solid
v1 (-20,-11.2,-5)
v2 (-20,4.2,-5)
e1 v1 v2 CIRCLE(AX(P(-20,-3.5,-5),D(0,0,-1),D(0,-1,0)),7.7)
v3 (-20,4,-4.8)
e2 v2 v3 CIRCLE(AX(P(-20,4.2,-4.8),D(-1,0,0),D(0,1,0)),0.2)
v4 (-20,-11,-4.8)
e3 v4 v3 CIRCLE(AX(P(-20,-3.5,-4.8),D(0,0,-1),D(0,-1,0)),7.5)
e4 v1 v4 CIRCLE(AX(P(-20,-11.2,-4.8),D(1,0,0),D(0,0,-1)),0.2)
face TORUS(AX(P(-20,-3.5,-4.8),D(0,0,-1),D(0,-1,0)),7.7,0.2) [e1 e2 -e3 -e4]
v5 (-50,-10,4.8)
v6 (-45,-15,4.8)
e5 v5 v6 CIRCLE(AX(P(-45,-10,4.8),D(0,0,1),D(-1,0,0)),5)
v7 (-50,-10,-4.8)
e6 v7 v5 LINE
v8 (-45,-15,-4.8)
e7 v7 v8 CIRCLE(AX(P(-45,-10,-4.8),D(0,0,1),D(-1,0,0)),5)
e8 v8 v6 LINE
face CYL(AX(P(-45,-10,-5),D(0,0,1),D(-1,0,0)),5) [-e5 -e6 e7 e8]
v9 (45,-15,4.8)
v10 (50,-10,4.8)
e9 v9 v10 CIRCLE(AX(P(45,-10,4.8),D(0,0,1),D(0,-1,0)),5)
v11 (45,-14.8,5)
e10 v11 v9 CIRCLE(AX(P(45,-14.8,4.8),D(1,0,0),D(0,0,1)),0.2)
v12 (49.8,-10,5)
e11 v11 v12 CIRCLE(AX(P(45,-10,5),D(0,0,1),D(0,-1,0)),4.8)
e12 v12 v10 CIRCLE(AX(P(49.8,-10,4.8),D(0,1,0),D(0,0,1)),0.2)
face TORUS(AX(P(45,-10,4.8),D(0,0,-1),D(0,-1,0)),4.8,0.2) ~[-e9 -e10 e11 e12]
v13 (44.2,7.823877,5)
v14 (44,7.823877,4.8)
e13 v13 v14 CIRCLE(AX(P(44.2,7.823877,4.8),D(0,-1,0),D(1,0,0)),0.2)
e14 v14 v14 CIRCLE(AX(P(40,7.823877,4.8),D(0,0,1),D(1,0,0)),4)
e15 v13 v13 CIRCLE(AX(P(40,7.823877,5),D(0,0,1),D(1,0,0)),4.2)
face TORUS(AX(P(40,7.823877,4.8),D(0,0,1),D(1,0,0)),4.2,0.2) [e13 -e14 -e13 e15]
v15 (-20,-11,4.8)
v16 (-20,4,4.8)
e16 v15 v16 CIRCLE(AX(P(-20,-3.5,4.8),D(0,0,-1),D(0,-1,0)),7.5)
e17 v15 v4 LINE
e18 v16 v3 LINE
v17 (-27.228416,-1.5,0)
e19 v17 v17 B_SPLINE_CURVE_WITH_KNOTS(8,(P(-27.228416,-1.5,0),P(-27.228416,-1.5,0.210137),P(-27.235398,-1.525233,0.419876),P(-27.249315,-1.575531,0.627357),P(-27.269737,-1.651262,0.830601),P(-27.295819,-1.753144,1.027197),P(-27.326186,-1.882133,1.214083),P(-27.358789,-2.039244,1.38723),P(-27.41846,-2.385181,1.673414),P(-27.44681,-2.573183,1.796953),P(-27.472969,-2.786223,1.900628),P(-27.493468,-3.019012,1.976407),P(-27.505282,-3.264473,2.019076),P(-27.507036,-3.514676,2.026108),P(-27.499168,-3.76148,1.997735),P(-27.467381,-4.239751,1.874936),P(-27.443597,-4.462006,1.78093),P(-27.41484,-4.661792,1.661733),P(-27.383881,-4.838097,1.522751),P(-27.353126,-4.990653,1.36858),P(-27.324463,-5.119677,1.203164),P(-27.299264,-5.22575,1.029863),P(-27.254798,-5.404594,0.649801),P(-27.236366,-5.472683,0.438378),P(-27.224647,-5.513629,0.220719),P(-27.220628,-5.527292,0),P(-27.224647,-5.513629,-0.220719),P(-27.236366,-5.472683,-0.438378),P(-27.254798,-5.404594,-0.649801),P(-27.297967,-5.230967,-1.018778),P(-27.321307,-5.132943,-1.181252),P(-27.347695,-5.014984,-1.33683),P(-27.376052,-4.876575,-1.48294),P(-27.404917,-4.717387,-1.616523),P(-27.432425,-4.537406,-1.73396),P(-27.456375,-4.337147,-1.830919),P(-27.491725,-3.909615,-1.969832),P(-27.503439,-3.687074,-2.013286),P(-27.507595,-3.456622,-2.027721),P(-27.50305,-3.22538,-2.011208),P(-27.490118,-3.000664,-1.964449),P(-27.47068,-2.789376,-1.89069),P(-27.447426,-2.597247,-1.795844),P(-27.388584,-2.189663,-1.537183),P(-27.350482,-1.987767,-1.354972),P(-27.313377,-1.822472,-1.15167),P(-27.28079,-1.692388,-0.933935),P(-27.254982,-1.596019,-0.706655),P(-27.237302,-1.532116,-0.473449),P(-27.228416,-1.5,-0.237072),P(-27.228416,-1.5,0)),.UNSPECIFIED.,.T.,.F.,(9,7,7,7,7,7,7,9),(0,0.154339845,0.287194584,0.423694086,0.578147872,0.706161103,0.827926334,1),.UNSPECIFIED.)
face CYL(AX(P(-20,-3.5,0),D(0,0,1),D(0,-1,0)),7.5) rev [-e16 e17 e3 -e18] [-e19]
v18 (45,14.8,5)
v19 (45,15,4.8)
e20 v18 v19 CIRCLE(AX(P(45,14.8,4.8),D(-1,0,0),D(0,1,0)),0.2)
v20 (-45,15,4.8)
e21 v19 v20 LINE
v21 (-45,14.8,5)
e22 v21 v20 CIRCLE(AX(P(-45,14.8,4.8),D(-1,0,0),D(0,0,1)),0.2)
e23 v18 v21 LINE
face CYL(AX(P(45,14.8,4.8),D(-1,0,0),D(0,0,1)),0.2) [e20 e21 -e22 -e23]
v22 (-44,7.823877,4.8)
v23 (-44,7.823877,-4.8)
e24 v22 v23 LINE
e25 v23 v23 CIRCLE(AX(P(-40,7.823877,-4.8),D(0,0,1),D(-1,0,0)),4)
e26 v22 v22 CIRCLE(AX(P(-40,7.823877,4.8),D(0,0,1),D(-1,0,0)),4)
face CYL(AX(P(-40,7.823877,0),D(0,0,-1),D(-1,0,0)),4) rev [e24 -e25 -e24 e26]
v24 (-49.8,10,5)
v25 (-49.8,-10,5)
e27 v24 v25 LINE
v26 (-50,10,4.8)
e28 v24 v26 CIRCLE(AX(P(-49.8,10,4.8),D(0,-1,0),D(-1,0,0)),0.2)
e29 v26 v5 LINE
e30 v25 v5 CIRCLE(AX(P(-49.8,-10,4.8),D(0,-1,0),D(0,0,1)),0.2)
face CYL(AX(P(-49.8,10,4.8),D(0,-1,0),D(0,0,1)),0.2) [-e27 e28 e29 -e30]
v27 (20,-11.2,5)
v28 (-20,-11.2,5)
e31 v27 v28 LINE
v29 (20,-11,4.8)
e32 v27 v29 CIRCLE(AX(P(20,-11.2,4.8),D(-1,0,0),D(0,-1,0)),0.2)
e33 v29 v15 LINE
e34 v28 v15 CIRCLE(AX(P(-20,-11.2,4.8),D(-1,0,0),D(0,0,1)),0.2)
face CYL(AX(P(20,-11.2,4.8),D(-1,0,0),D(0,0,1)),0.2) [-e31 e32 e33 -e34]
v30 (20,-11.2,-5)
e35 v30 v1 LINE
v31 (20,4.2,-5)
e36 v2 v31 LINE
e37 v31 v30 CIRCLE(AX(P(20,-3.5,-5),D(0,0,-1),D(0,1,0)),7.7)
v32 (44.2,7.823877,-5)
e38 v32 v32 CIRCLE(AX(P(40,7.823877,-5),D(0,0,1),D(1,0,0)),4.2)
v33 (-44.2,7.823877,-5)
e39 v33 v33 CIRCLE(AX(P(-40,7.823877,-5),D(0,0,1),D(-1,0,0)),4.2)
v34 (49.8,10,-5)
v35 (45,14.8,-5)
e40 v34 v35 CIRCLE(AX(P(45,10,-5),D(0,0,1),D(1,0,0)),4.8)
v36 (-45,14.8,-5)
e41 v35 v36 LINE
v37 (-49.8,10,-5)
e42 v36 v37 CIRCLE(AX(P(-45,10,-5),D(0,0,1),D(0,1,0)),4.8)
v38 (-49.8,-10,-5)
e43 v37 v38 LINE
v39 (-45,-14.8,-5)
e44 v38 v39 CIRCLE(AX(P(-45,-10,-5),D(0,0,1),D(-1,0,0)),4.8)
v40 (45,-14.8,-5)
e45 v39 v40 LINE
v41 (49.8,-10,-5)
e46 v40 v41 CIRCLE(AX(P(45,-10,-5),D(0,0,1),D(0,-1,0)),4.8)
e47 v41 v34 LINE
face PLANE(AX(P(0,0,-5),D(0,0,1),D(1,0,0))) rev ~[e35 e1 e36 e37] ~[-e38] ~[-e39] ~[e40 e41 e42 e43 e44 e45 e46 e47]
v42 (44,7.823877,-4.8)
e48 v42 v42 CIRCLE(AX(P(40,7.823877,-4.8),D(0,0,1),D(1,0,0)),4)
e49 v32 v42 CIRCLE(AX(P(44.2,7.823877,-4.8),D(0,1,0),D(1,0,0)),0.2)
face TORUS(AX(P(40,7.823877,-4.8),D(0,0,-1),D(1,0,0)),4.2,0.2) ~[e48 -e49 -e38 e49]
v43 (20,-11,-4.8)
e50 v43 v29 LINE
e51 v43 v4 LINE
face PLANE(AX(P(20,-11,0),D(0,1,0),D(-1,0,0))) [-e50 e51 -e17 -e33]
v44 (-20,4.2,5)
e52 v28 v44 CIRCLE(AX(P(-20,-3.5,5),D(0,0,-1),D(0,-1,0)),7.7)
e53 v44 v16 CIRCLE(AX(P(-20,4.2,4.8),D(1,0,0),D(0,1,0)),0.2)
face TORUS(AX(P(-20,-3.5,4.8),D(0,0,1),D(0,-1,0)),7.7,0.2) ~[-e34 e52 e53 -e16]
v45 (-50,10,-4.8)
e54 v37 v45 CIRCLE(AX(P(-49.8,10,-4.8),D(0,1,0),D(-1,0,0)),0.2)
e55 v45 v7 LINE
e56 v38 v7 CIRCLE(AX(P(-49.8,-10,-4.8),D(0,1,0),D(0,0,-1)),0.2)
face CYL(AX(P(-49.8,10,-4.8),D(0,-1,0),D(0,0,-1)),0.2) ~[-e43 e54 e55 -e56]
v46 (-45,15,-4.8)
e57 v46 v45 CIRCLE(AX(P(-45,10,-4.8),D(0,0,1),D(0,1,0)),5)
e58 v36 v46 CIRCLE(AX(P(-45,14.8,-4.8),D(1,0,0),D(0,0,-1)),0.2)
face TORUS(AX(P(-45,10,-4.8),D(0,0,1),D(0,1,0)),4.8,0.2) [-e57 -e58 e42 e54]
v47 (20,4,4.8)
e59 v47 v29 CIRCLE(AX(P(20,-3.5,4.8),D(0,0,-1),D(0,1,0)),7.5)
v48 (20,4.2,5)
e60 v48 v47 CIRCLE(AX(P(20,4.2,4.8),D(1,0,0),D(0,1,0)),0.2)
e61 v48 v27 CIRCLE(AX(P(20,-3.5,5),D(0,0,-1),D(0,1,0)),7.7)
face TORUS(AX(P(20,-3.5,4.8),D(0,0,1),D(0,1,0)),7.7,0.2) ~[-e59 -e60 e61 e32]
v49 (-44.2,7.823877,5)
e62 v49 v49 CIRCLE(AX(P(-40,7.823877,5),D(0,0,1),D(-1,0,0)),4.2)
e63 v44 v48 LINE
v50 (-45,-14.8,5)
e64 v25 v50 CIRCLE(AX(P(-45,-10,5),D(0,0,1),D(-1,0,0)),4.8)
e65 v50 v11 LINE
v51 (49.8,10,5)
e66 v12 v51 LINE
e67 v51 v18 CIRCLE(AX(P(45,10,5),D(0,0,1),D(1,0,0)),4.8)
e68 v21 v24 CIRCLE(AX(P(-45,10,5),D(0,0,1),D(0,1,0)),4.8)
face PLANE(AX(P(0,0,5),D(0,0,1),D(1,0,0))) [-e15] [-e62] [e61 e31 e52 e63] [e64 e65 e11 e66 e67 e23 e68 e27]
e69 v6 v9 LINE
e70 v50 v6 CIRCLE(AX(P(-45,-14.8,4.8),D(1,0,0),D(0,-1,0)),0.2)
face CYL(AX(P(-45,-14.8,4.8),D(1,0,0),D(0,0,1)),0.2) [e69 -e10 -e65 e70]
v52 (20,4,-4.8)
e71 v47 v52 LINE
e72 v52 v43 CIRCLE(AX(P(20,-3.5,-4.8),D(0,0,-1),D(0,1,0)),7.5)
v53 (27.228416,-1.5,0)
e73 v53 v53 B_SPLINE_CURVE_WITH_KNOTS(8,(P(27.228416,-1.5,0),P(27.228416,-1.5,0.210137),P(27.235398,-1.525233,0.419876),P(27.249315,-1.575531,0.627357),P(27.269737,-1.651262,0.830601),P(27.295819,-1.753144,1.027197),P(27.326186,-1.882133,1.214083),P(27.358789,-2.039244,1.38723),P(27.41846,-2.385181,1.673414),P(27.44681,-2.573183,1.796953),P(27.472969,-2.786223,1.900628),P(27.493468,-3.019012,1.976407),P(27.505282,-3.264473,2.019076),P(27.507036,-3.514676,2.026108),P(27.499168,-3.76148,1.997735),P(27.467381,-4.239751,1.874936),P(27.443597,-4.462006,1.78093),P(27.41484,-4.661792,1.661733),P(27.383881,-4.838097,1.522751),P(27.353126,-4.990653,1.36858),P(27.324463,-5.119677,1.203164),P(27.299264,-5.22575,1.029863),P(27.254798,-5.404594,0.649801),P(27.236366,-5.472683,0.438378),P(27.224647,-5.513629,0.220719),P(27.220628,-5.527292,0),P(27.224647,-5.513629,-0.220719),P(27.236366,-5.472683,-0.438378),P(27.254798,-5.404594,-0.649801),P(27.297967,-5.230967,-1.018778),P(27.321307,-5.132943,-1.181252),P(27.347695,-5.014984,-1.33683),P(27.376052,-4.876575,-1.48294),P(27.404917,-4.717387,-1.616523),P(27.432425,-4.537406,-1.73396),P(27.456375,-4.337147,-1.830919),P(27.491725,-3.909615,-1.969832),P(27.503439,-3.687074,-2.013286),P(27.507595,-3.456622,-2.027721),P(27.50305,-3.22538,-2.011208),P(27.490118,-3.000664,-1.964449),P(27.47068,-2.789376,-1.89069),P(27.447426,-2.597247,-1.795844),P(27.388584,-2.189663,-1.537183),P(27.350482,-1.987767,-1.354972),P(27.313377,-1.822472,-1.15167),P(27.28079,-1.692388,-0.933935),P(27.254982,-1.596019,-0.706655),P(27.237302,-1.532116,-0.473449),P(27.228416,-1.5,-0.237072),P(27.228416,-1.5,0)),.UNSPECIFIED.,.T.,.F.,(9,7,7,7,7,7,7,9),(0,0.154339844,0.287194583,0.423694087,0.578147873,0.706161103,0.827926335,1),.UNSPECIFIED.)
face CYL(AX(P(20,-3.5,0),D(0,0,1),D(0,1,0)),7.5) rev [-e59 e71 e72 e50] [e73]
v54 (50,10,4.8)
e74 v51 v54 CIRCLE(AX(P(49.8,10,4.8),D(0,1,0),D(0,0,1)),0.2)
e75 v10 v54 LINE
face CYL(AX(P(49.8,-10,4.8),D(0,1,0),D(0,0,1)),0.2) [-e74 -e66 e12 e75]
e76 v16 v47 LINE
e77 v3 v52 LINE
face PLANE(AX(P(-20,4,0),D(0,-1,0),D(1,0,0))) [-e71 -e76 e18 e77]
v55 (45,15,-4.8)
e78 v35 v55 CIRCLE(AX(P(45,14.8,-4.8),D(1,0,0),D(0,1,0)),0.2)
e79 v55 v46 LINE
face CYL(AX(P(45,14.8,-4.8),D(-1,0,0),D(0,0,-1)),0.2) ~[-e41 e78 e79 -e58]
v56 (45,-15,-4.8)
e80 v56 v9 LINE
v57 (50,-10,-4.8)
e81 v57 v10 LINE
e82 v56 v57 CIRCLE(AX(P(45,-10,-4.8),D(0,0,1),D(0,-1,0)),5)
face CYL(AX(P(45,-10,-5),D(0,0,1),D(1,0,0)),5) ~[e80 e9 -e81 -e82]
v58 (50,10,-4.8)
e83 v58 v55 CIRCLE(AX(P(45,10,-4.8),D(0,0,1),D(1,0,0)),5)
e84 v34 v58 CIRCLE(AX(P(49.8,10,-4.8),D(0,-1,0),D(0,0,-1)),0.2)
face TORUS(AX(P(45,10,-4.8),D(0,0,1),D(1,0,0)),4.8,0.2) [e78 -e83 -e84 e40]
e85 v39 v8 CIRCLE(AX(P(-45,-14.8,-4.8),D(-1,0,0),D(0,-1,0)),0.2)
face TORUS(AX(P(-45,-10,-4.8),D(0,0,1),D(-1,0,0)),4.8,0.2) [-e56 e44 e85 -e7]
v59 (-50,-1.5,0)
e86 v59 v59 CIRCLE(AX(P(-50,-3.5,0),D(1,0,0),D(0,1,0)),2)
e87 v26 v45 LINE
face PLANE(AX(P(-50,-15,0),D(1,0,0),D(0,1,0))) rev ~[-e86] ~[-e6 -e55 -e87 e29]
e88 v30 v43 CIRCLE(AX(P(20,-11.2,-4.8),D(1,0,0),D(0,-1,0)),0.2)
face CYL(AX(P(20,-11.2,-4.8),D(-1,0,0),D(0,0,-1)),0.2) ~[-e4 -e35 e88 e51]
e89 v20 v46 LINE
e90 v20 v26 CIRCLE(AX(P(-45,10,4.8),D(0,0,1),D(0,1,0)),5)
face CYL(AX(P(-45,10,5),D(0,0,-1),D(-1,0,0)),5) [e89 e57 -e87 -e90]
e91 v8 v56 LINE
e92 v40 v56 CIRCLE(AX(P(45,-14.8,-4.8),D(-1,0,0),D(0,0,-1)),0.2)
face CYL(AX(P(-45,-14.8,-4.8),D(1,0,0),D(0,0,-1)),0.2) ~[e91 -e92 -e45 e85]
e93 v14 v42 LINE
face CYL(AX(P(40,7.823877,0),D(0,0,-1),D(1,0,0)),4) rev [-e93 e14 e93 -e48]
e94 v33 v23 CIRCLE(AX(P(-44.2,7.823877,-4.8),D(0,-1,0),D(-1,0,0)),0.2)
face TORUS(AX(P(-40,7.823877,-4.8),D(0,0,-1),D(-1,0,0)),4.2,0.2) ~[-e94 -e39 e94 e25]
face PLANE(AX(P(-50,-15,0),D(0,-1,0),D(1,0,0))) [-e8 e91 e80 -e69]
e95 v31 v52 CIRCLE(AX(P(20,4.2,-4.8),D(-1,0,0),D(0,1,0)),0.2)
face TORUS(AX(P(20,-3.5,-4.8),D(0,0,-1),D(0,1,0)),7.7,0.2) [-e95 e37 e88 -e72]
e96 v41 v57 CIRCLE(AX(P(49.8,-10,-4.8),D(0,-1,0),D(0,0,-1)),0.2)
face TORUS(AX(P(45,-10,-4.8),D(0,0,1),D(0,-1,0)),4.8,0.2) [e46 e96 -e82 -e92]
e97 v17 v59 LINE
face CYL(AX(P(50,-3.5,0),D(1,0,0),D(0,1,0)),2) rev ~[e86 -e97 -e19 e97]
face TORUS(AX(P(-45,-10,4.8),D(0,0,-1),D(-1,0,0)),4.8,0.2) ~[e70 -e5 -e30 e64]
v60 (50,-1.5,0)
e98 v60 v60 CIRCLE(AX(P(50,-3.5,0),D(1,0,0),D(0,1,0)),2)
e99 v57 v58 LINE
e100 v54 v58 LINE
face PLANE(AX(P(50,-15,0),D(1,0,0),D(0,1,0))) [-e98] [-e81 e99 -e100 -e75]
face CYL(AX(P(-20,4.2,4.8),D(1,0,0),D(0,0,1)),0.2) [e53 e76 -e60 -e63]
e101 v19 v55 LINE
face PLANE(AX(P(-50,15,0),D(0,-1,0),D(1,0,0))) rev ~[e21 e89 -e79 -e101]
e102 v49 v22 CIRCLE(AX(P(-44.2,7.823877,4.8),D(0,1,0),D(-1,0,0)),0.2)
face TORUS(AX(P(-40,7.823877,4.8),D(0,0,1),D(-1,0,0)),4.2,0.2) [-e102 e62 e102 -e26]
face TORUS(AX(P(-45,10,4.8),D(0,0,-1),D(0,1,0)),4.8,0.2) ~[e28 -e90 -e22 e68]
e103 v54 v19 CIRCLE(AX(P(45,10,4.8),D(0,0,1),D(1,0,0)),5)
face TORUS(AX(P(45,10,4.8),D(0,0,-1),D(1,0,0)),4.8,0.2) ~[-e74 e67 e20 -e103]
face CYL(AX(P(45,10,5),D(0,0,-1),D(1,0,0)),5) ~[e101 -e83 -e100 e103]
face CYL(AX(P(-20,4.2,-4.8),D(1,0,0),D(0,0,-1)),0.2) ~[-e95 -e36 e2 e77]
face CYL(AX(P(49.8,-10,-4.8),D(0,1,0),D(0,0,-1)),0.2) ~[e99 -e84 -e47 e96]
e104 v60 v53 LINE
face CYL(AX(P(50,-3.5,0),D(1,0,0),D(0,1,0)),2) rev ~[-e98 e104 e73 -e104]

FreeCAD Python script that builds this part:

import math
import FreeCAD as App
import Part
import Sketcher


def edges_at(feature, points):
    """Names of the edges that pass closest to the given points."""
    edges = feature.Shape.Edges
    near = lambda p: min(range(len(edges)), key=lambda i: edges[i].distToShape(Part.Vertex(*p))[0])
    return sorted({f"Edge{near(p) + 1}" for p in points})


def add_polygon(sketch, points):
    """Adds a closed chain of lines whose ends are joined by coincident constraints."""
    first, n = sketch.GeometryCount, len(points)
    for a, b in zip(points, points[1:] + points[:1]):
        sketch.addGeometry(Part.LineSegment(App.Vector(*a, 0), App.Vector(*b, 0)), False)
    for i in range(n):
        sketch.addConstraint(Sketcher.Constraint("Coincident", first + i, 2, first + (i + 1) % n, 1))

doc = App.newDocument("Part")
body = doc.addObject("PartDesign::Body", "Body")

# Sketch on XY plane
sketch1 = body.newObject("Sketcher::SketchObject", "Sketch")
sketch1.AttachmentSupport = (doc.getObject("XY_Plane"), [""])
sketch1.MapMode = "FlatFace"
add_polygon(sketch1, [(-50, 15), (-50, -15), (50, -15), (50, 15)])  # lines 0-3
sketch1.addGeometry(Part.ArcOfCircle(Part.Circle(App.Vector(20, -3.5, 0), App.Vector(0, 0, 1), 7.5), math.radians(-90), math.radians(90)), False)  # 4
sketch1.addGeometry(Part.LineSegment(App.Vector(20, -11, 0), App.Vector(-20, -11, 0)), False)  # 5
sketch1.addGeometry(Part.ArcOfCircle(Part.Circle(App.Vector(-20, -3.5, 0), App.Vector(0, 0, 1), 7.5), math.radians(90), math.radians(270)), False)  # 6
sketch1.addGeometry(Part.LineSegment(App.Vector(-20, 4, 0), App.Vector(20, 4, 0)), False)  # 7
sketch1.addGeometry(Part.Circle(App.Vector(-40, 7.8, 0), App.Vector(0, 0, 1), 4), False)  # 8
sketch1.addGeometry(Part.Circle(App.Vector(40, 7.8, 0), App.Vector(0, 0, 1), 4), False)  # 9
sketch1.addConstraint([
    Sketcher.Constraint("Tangent", 4, 1, 5, 1),
    Sketcher.Constraint("Tangent", 5, 2, 6, 2),
    Sketcher.Constraint("Tangent", 6, 1, 7, 1),
    Sketcher.Constraint("Tangent", 7, 2, 4, 2),
    Sketcher.Constraint("Vertical", 0),
    Sketcher.Constraint("Horizontal", 1),
    Sketcher.Constraint("Vertical", 2),
    Sketcher.Constraint("Horizontal", 3),
    Sketcher.Constraint("Horizontal", 5),
    Sketcher.Constraint("Horizontal", 7),
    Sketcher.Constraint("Equal", 8, 9),
    Sketcher.Constraint("Symmetric", 0, 2, 2, 2, -1, 1),
    Sketcher.Constraint("Symmetric", 8, 3, 9, 3, -2),
    Sketcher.Constraint("Diameter", 8, 8.0),
    Sketcher.Constraint("Radius", 4, 7.5),
    Sketcher.Constraint("DistanceX", 1, 1, 1, 2, 100.0),
    Sketcher.Constraint("DistanceX", 5, 2, 5, 1, 40.0),
    Sketcher.Constraint("DistanceY", 0, 2, 0, 1, 30.0),
    Sketcher.Constraint("DistanceX", -1, 1, 4, 3, 20.0),
    Sketcher.Constraint("DistanceX", 8, 3, -1, 1, 40.0),
    Sketcher.Constraint("DistanceY", 4, 1, -1, 1, 11.0),
    Sketcher.Constraint("DistanceY", -1, 1, 8, 3, 7.823877),
])
pad1 = body.newObject("PartDesign::Pad", "Pad")
pad1.Profile = sketch1
pad1.Length = 10
pad1.Midplane = True
doc.recompute()

fillet = body.newObject("PartDesign::Fillet", "Fillet")
fillet.Base = (pad1, edges_at(pad1, [
    (-50, 15, 0),
    (50, 15, 0),
    (50, -15, 0),
    (-50, -15, 0),
]))
fillet.Radius = 5
doc.recompute()

fillet2 = body.newObject("PartDesign::Fillet", "Fillet001")
fillet2.Base = (fillet, edges_at(fillet, [
    (27.5, -3.5, -5),
    (0, 4, -5),
    (-27.5, -3.5, -5),
    (0, -11, -5),
    (27.5, -3.5, 5),
    (0, 4, 5),
    (-27.5, -3.5, 5),
    (0, -11, 5),
    (36, 7.824, -5),
    (36, 7.824, 5),
    (-36, 7.824, -5),
    (-36, 7.824, 5),
    (50, 0, -5),
    (50, 0, 5),
    (-50, 0, -5),
    (0, 15, -5),
    (0, -15, -5),
    (-48.536, 13.536, -5),
    (-48.536, -13.536, -5),
    (48.536, 13.536, -5),
    (48.536, -13.536, -5),
    (0, -15, 5),
    (-50, 0, 5),
    (0, 15, 5),
    (-48.536, 13.536, 5),
    (-48.536, -13.536, 5),
    (48.536, 13.536, 5),
    (48.536, -13.536, 5),
]))
fillet2.Radius = 0.2

# Sketch on YZ plane
sketch2 = body.newObject("Sketcher::SketchObject", "Sketch001")
sketch2.AttachmentSupport = (doc.getObject("YZ_Plane"), [""])
sketch2.MapMode = "FlatFace"
sketch2.AttachmentOffset = App.Placement(App.Vector(0, 0, 50), App.Rotation())
sketch2.addGeometry(Part.Circle(App.Vector(-3.5, 0, 0), App.Vector(0, 0, 1), 2), False)
sketch2.addConstraint([
    Sketcher.Constraint("PointOnObject", 0, 3, -1),
    Sketcher.Constraint("Diameter", 0, 4.0),
    Sketcher.Constraint("DistanceX", 0, 3, -1, 1, 3.5),
])
pocket1 = body.newObject("PartDesign::Pocket", "Pocket")
pocket1.Profile = sketch2
pocket1.Type = "ThroughAll"

doc.recompute()
